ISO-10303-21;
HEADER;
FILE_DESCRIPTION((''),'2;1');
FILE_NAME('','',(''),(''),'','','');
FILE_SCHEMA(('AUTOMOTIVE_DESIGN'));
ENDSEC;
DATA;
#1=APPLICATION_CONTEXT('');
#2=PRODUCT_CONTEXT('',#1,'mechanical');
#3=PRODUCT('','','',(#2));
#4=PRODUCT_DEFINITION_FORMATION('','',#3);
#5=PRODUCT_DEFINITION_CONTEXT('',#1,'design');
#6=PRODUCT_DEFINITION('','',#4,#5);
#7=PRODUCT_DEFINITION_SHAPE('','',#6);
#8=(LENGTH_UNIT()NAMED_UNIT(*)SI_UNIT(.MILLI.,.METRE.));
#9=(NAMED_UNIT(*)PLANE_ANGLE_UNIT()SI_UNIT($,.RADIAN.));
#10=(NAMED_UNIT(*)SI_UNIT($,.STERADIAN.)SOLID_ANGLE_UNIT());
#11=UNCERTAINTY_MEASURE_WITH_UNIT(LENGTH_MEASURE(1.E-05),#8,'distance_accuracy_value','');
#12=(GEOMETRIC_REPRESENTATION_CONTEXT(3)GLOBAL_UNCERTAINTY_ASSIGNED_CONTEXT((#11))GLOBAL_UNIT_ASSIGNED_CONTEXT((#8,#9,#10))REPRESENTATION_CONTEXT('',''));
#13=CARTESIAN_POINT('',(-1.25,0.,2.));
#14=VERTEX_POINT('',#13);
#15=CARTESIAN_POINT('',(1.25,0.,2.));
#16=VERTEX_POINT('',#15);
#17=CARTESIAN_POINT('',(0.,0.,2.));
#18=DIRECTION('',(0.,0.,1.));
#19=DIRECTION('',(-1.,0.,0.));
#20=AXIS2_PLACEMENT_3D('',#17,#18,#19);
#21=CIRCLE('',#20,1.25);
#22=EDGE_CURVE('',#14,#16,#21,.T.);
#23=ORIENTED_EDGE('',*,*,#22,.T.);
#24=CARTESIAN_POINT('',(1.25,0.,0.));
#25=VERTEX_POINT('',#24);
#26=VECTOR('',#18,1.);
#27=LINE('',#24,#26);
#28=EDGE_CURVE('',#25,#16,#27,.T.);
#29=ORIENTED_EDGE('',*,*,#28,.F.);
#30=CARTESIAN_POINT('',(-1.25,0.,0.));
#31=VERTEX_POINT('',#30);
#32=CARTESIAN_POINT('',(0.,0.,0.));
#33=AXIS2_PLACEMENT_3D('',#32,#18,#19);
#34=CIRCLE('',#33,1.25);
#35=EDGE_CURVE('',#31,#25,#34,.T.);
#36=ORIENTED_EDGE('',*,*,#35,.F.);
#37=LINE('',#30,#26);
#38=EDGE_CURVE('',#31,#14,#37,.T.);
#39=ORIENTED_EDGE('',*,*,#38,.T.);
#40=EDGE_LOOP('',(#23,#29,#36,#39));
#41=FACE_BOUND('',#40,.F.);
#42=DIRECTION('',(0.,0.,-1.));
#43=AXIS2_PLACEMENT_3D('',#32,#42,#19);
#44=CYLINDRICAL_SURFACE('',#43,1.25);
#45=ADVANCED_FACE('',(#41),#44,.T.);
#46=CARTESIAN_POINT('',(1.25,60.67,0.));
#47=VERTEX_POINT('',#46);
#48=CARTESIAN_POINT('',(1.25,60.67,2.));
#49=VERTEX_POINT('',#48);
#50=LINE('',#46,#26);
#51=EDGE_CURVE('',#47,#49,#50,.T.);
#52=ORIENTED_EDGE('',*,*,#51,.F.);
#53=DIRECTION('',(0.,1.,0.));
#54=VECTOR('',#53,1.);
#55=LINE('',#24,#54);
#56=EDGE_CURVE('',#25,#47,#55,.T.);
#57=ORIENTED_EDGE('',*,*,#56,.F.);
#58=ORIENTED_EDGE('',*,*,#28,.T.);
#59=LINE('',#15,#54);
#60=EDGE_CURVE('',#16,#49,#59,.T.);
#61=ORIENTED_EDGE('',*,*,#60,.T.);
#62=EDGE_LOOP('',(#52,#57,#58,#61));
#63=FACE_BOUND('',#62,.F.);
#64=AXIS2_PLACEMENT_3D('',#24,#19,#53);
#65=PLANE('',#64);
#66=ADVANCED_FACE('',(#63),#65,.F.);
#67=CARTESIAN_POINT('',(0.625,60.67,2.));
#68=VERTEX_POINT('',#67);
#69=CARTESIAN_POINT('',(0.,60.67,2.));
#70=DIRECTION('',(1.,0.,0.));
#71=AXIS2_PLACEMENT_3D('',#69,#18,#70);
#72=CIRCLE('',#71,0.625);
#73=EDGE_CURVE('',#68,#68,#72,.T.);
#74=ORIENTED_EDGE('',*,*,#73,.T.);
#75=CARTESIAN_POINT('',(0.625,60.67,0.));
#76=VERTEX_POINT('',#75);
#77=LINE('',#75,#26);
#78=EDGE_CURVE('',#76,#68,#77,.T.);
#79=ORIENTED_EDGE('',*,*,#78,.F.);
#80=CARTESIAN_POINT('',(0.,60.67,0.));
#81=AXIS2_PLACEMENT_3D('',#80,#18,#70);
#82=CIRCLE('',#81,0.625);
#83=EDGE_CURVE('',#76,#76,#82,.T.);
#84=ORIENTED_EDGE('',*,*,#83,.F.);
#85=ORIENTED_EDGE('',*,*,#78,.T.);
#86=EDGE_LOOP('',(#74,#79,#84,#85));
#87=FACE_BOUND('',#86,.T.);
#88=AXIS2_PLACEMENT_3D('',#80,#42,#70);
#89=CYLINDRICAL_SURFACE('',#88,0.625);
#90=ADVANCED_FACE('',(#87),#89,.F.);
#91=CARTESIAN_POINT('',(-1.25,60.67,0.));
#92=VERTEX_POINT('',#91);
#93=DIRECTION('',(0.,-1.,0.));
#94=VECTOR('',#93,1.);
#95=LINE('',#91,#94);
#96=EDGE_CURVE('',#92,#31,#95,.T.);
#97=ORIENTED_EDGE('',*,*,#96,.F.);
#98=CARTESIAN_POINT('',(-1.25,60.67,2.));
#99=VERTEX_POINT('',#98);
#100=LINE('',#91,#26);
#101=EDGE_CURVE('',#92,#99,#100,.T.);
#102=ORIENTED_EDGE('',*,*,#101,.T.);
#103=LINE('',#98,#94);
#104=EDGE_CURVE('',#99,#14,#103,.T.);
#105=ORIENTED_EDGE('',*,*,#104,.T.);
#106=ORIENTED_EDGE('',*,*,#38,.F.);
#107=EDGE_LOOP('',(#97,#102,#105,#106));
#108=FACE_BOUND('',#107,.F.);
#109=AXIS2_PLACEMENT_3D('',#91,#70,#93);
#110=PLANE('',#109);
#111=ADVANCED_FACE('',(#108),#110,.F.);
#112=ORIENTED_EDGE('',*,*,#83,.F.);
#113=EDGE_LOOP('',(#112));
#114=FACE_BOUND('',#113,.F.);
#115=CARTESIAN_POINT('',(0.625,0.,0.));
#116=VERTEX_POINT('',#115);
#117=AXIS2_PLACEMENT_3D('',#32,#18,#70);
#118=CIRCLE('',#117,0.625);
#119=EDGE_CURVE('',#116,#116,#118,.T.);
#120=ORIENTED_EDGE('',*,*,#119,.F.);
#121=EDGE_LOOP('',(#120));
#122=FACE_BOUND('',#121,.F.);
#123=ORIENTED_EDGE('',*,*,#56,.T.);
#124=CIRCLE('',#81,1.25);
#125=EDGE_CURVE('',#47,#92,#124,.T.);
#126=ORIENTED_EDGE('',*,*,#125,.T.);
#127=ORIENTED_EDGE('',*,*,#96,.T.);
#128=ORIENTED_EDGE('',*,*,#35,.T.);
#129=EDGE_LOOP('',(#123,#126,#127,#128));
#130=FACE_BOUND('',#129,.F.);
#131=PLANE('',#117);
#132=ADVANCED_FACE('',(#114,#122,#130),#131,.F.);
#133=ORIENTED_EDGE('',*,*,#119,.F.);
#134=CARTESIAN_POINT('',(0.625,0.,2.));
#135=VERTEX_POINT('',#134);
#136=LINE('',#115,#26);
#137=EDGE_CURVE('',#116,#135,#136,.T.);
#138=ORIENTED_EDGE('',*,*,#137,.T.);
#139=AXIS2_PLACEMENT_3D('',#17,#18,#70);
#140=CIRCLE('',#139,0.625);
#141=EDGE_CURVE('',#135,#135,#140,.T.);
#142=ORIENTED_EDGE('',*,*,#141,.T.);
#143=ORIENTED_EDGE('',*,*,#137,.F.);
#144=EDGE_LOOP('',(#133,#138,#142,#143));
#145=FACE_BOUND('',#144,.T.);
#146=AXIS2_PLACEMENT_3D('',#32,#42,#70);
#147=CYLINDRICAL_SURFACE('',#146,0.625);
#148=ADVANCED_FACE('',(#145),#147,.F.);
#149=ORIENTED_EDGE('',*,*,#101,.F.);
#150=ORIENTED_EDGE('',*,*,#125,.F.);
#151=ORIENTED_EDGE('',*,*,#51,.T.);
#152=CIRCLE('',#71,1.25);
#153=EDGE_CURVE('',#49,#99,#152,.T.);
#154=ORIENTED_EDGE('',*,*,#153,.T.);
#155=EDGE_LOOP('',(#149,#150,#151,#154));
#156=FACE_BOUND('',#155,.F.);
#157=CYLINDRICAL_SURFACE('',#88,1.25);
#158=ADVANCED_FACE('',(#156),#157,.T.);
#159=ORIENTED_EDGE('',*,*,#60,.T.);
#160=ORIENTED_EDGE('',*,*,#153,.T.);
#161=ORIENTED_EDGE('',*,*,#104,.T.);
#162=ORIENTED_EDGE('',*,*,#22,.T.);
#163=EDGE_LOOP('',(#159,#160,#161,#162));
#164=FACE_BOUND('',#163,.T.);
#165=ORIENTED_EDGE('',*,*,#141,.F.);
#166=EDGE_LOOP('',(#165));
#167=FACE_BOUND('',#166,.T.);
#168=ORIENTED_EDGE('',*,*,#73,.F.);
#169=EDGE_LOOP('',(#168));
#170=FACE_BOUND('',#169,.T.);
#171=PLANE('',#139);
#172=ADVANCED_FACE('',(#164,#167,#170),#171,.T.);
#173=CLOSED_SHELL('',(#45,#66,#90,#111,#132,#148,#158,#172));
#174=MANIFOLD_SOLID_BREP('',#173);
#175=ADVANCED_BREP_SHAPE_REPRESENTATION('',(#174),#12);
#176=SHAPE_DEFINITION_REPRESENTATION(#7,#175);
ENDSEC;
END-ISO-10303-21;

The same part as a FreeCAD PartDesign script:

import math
import FreeCAD as App
import Part
import Sketcher

V = App.Vector

doc = App.newDocument("Part")
params = doc.addObject("Spreadsheet::Sheet", "Params")
for row, (alias, value) in enumerate([
    ("sketch1_diameter", "1.25 mm"),
    ("sketch1_radius", "1.25 mm"),
    ("sketch1_height", "60.67 mm"),
    ("pad1_length", "2 mm"),
], start=1):
    params.set(f"A{row}", alias)
    params.set(f"B{row}", "=" + value)
    params.setAlias(f"B{row}", alias)

body = doc.addObject("PartDesign::Body", "Body")

# Sketch on XY plane
sketch1 = body.newObject("Sketcher::SketchObject", "Sketch")
sketch1.AttachmentSupport = (doc.getObject("XY_Plane"), [""])
sketch1.MapMode = "FlatFace"
sketch1.addGeometry([
    Part.ArcOfCircle(Part.Circle(V(0, 0, 0), V(0, 0, 1), 1.2), math.radians(180), math.radians(360)),  # 0
    Part.LineSegment(V(1.2, 0, 0), V(1.2, 60.7, 0)),  # 1
    Part.ArcOfCircle(Part.Circle(V(0, 60.7, 0), V(0, 0, 1), 1.2), math.radians(0), math.radians(180)),  # 2
    Part.LineSegment(V(-1.2, 60.7, 0), V(-1.2, 0, 0)),  # 3
    Part.Circle(V(0, 0, 0), V(0, 0, 1), 0.6),  # 4
    Part.Circle(V(0, 60.7, 0), V(0, 0, 1), 0.6),  # 5
], False)
sketch1.addConstraint([
    Sketcher.Constraint("Tangent", 0, 2, 1, 1),
    Sketcher.Constraint("Tangent", 1, 2, 2, 1),
    Sketcher.Constraint("Tangent", 2, 2, 3, 1),
    Sketcher.Constraint("Tangent", 3, 2, 0, 1),
    Sketcher.Constraint("Vertical", 1),
    Sketcher.Constraint("Vertical", 3),
    Sketcher.Constraint("Coincident", 0, 3, -1, 1),
    Sketcher.Constraint("Coincident", 4, 3, -1, 1),
    Sketcher.Constraint("Coincident", 5, 3, 2, 3),
    Sketcher.Constraint("Equal", 4, 5),
    Sketcher.Constraint("Diameter", 4, 1.25),
    Sketcher.Constraint("Radius", 0, 1.25),
    Sketcher.Constraint("DistanceY", 1, 1, 1, 2, 60.67),
])
sketch1.setExpression("Constraints[10]", "Params.sketch1_diameter")
sketch1.setExpression("Constraints[11]", "Params.sketch1_radius")
sketch1.setExpression("Constraints[12]", "Params.sketch1_height")
pad1 = body.newObject("PartDesign::Pad", "Pad")
pad1.Profile = sketch1
pad1.setExpression("Length", "Params.pad1_length")

doc.recompute()
